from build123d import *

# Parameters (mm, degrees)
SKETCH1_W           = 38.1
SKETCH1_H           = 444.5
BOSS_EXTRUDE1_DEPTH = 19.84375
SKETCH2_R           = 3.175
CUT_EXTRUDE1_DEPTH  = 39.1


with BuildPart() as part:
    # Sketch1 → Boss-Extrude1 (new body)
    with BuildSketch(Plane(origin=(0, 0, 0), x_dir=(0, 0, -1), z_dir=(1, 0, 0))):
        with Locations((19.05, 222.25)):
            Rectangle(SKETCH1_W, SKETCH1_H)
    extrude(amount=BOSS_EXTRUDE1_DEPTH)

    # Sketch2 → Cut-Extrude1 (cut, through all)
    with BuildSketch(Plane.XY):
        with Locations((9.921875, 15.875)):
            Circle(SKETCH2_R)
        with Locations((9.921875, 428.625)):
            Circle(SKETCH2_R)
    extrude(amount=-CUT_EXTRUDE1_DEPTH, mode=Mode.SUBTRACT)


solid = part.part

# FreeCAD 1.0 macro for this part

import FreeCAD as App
import Part
import Sketcher

V = App.Vector
Q = App.Units.Quantity

doc = App.newDocument("Part")
body = doc.addObject("PartDesign::Body", "Body")

sketch1 = doc.addObject("Sketcher::SketchObject", "Sketch")
body.addObject(sketch1)
sketch1.AttachmentSupport = (doc.YZ_Plane, [""])
sketch1.MapMode = "FlatFace"
sketch1.addGeometry([
    Part.LineSegment(V(444, 0, 0), V(0, 0, 0)),
    Part.LineSegment(V(0, 0, 0), V(0, -38, 0)),
    Part.LineSegment(V(0, -38, 0), V(444, -38, 0)),
    Part.LineSegment(V(444, -38, 0), V(444, 0, 0)),
], False)
sketch1.addConstraint([
    Sketcher.Constraint("Coincident", 0, 2, 1, 1),
    Sketcher.Constraint("Coincident", 1, 2, 2, 1),
    Sketcher.Constraint("Coincident", 2, 2, 3, 1),
    Sketcher.Constraint("Coincident", 3, 2, 0, 1),
    Sketcher.Constraint("Horizontal", 0),
    Sketcher.Constraint("Vertical", 1),
    Sketcher.Constraint("Horizontal", 2),
    Sketcher.Constraint("Vertical", 3),
    Sketcher.Constraint("Coincident", 0, 2, -1, 1),
    Sketcher.Constraint("DistanceX", 0, 2, 0, 1, Q("17.5 in")),
    Sketcher.Constraint("DistanceY", 1, 2, 1, 1, Q("1.5 in")),
])
pad1 = doc.addObject("PartDesign::Pad", "Pad")
body.addObject(pad1)
pad1.Profile = sketch1
pad1.Length = Q("0.78125 in")

sketch2 = doc.addObject("Sketcher::SketchObject", "Sketch001")
body.addObject(sketch2)
sketch2.AttachmentSupport = (doc.XY_Plane, [""])
sketch2.MapMode = "FlatFace"
sketch2.addGeometry([
    Part.Circle(V(9.9, 15.9, 0), V(0, 0, 1), 3.2),
    Part.Circle(V(9.9, 428.6, 0), V(0, 0, 1), 3.2),
], False)
sketch2.addConstraint([
    Sketcher.Constraint("Equal", 0, 1),
    Sketcher.Constraint("Vertical", 0, 3, 1, 3),
    Sketcher.Constraint("Diameter", 0, Q("0.25 in")),
    Sketcher.Constraint("DistanceY", 0, 3, 1, 3, Q("16.25 in")),
    Sketcher.Constraint("DistanceX", -1, 1, 0, 3, Q("0.390625 in")),
    Sketcher.Constraint("DistanceY", -1, 1, 0, 3, Q("0.625 in")),
])
pocket1 = doc.addObject("PartDesign::Pocket", "Pocket")
body.addObject(pocket1)
pocket1.Profile = sketch2
pocket1.Type = "ThroughAll"

doc.recompute()
